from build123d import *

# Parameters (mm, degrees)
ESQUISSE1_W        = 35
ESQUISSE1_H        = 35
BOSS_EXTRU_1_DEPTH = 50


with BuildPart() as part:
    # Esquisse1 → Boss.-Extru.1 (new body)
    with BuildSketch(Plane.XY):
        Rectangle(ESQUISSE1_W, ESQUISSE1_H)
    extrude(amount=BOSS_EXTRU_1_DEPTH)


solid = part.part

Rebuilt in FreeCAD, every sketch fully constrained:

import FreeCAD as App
import Part
import Sketcher

doc = App.newDocument("Part")
body = doc.addObject("PartDesign::Body", "Body")

# Sketch on XY plane
sketch1 = doc.addObject("Sketcher::SketchObject", "Sketch")
body.addObject(sketch1)
sketch1.AttachmentSupport = (doc.XY_Plane, [""])
sketch1.MapMode = "FlatFace"
sketch1.addGeometry(Part.LineSegment(App.Vector(-17.5, 17.5, 0), App.Vector(-17.5, -17.5, 0)), False)
sketch1.addGeometry(Part.LineSegment(App.Vector(-17.5, -17.5, 0), App.Vector(17.5, -17.5, 0)), False)
sketch1.addGeometry(Part.LineSegment(App.Vector(17.5, -17.5, 0), App.Vector(17.5, 17.5, 0)), False)
sketch1.addGeometry(Part.LineSegment(App.Vector(17.5, 17.5, 0), App.Vector(-17.5, 17.5, 0)), False)
sketch1.addConstraint(Sketcher.Constraint("Coincident", 0, 2, 1, 1))
sketch1.addConstraint(Sketcher.Constraint("Coincident", 1, 2, 2, 1))
sketch1.addConstraint(Sketcher.Constraint("Coincident", 2, 2, 3, 1))
sketch1.addConstraint(Sketcher.Constraint("Coincident", 3, 2, 0, 1))
sketch1.addConstraint(Sketcher.Constraint("Vertical", 0))
sketch1.addConstraint(Sketcher.Constraint("Horizontal", 1))
sketch1.addConstraint(Sketcher.Constraint("Vertical", 2))
sketch1.addConstraint(Sketcher.Constraint("Horizontal", 3))
sketch1.addConstraint(Sketcher.Constraint("Symmetric", 0, 2, 2, 2, -1, 1))
sketch1.addConstraint(Sketcher.Constraint("Equal", 3, 0))
sketch1.addConstraint(Sketcher.Constraint("DistanceX", 1, 1, 1, 2, 35.0))
pad1 = doc.addObject("PartDesign::Pad", "Pad")
body.addObject(pad1)
pad1.Profile = sketch1
pad1.Length = 50

doc.recompute()
